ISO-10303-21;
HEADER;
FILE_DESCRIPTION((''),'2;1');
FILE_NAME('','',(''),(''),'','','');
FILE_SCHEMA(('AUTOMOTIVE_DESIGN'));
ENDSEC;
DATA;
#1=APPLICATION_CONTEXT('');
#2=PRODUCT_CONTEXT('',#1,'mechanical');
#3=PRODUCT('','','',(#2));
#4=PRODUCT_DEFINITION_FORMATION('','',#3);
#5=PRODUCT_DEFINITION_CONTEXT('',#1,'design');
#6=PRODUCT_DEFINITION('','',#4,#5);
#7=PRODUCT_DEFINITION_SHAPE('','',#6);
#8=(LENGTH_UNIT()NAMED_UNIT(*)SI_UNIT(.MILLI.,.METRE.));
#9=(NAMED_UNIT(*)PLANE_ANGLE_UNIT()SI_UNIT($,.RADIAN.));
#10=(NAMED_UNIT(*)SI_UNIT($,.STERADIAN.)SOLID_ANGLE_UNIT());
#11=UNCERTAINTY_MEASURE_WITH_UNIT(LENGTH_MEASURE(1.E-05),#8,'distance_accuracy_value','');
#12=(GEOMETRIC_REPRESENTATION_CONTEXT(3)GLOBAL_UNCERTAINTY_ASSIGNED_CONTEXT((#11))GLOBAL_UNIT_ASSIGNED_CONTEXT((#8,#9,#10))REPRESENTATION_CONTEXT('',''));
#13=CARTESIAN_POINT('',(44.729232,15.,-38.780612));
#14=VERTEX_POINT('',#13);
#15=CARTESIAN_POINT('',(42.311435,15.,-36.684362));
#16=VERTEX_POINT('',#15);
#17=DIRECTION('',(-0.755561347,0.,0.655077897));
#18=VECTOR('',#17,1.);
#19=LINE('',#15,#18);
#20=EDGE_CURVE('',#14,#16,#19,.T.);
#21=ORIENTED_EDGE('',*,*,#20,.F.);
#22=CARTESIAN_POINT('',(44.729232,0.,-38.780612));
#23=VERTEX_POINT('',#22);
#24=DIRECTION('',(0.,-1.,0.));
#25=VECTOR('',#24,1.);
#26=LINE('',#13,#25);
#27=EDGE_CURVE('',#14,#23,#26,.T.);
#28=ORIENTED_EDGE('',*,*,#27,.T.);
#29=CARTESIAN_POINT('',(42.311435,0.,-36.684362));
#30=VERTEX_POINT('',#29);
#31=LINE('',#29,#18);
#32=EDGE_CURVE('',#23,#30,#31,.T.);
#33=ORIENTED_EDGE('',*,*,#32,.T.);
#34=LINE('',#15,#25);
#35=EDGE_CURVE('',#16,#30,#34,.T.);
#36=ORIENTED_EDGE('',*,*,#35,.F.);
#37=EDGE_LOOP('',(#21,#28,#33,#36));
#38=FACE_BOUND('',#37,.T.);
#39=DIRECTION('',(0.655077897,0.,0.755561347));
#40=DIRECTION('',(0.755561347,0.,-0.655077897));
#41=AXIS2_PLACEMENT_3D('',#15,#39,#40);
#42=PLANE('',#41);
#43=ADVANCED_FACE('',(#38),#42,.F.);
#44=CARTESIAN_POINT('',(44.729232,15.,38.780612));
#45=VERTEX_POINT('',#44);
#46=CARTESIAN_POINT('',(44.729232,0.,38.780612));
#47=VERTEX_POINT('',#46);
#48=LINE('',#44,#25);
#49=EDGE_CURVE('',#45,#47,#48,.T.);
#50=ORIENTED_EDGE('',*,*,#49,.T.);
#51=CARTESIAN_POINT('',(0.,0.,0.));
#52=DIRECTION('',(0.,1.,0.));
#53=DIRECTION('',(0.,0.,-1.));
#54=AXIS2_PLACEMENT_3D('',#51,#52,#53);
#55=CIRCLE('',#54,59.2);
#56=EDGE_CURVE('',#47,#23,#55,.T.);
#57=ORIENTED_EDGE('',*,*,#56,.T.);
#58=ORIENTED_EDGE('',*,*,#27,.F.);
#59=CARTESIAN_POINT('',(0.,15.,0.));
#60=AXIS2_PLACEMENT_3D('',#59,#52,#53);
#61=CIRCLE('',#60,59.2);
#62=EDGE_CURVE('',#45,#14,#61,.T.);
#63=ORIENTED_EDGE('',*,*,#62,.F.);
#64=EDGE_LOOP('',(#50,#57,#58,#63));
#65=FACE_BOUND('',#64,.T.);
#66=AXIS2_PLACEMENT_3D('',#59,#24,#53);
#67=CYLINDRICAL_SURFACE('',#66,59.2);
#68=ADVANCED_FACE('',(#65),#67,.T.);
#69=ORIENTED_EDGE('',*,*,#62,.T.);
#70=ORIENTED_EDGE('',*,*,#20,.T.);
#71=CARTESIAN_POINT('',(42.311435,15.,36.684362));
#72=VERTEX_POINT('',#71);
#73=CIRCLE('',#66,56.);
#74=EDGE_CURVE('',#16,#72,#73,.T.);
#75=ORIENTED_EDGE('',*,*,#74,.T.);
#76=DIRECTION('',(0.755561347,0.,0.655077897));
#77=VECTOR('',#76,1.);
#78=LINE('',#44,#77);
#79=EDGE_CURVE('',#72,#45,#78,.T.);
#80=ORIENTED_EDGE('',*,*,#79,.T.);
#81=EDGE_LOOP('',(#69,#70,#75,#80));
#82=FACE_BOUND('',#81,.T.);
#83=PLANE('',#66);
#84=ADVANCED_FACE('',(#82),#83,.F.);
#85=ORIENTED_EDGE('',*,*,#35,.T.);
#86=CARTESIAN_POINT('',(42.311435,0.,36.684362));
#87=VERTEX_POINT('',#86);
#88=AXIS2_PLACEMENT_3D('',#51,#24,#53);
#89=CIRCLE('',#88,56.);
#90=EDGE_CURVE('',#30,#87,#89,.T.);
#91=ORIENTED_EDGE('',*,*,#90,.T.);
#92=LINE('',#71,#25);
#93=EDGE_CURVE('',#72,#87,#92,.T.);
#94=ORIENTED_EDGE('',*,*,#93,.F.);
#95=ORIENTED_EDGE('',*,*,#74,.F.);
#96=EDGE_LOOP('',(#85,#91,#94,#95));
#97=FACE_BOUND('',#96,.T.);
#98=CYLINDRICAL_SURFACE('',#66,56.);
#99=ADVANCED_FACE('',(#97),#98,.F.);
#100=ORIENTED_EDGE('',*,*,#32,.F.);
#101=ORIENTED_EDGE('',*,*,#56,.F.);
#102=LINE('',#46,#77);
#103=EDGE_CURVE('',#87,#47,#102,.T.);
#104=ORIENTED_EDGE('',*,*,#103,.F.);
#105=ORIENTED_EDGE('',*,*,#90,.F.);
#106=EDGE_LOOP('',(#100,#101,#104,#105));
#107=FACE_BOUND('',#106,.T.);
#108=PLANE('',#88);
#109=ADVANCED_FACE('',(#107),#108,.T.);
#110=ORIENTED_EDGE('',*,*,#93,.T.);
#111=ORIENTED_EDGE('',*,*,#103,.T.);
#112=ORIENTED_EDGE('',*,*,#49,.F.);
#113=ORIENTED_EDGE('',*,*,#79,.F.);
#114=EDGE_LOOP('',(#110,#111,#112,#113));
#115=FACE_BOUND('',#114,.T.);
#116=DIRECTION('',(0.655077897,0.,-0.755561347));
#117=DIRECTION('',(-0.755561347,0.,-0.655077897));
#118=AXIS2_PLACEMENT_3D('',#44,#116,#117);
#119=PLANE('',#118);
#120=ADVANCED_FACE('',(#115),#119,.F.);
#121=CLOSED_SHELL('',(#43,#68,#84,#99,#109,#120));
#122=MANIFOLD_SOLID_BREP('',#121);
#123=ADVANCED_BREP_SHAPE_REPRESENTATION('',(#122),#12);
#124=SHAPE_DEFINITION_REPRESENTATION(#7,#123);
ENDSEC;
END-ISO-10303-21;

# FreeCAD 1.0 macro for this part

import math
import FreeCAD as App
import Part
import Sketcher
from FreeCAD import Vector
Q = App.Units.Quantity

doc = App.newDocument("Part")
body = doc.addObject("PartDesign::Body", "Body")

# Sketch on XZ plane
sketch1 = doc.addObject("Sketcher::SketchObject", "Sketch")
body.addObject(sketch1)
sketch1.AttachmentSupport = (doc.XZ_Plane, [""])
sketch1.MapMode = "FlatFace"
sketch1.addGeometry(Part.LineSegment(Vector(44.7, -38.8, 0), Vector(42.3, -36.7, 0)), False)
sketch1.addGeometry(Part.ArcOfCircle(Part.Circle(Vector(0, 0, 0), Vector(0, 0, 1), 56), math.radians(-41), math.radians(41)), False)
sketch1.addGeometry(Part.LineSegment(Vector(42.3, 36.7, 0), Vector(44.7, 38.8, 0)), False)
sketch1.addGeometry(Part.ArcOfCircle(Part.Circle(Vector(0, 0, 0), Vector(0, 0, 1), 59.2), math.radians(-41), math.radians(41)), False)
sketch1.addConstraint(Sketcher.Constraint("Coincident", 0, 2, 1, 1))
sketch1.addConstraint(Sketcher.Constraint("Coincident", 1, 2, 2, 1))
sketch1.addConstraint(Sketcher.Constraint("Coincident", 2, 2, 3, 2))
sketch1.addConstraint(Sketcher.Constraint("Coincident", 3, 1, 0, 1))
sketch1.addConstraint(Sketcher.Constraint("Coincident", 1, 3, -1, 1))
sketch1.addConstraint(Sketcher.Constraint("Coincident", 3, 3, -1, 1))
sketch1.addConstraint(Sketcher.Constraint("Vertical", 0, 2, 1, 2))
sketch1.addConstraint(Sketcher.Constraint("Vertical", 2, 2, 3, 1))
sketch1.addConstraint(Sketcher.Constraint("Radius", 1, Q("56 mm")))
sketch1.addConstraint(Sketcher.Constraint("Radius", 3, Q("59.2 mm")))
sketch1.addConstraint(Sketcher.Constraint("DistanceX", -1, 1, 2, 2, Q("44.729232 mm")))
sketch1.addConstraint(Sketcher.Constraint("DistanceY", 1, 2, 2, 2, Q("2.096249 mm")))
pad1 = doc.addObject("PartDesign::Pad", "Pad")
body.addObject(pad1)
pad1.Profile = sketch1
pad1.Length = 15
pad1.Reversed = True

doc.recompute()
